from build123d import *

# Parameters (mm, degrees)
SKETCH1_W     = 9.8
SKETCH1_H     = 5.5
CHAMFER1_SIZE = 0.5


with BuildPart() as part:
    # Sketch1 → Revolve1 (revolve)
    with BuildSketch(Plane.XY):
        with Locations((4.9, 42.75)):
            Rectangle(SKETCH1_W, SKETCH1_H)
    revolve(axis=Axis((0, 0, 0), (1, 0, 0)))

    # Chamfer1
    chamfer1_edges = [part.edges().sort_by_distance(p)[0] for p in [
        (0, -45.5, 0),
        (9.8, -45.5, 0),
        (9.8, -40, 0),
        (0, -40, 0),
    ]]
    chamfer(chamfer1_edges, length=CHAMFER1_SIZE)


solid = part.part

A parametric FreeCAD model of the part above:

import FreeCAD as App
import Part
import Sketcher
Q = App.Units.Quantity


def edges_at(feature, points):
    """Names of the edges that pass closest to the given points."""
    edges = feature.Shape.Edges
    near = lambda p: min(range(len(edges)), key=lambda i: edges[i].distToShape(Part.Vertex(*p))[0])
    return sorted({f"Edge{near(p) + 1}" for p in points})


def add_polygon(sketch, points):
    """Adds a closed chain of lines whose ends are joined by coincident constraints."""
    first, n = sketch.GeometryCount, len(points)
    for a, b in zip(points, points[1:] + points[:1]):
        sketch.addGeometry(Part.LineSegment(App.Vector(*a, 0), App.Vector(*b, 0)), False)
    for i in range(n):
        sketch.addConstraint(Sketcher.Constraint("Coincident", first + i, 2, first + (i + 1) % n, 1))

doc = App.newDocument("Part")
body = doc.addObject("PartDesign::Body", "Body")

# Sketch on XY plane
sketch1 = body.newObject("Sketcher::SketchObject", "Sketch")
sketch1.AttachmentSupport = (doc.getObject("XY_Plane"), [""])
sketch1.MapMode = "FlatFace"
add_polygon(sketch1, [(0, 46), (0, 40), (10, 40), (10, 46)])  # lines 0-3
sketch1.addConstraint(Sketcher.Constraint("Vertical", 0))
sketch1.addConstraint(Sketcher.Constraint("Horizontal", 1))
sketch1.addConstraint(Sketcher.Constraint("Vertical", 2))
sketch1.addConstraint(Sketcher.Constraint("Horizontal", 3))
sketch1.addConstraint(Sketcher.Constraint("PointOnObject", 0, 2, -2))
sketch1.addConstraint(Sketcher.Constraint("DistanceX", 1, 1, 1, 2, Q("9.8 mm")))
sketch1.addConstraint(Sketcher.Constraint("DistanceY", 0, 2, 0, 1, Q("5.5 mm")))
sketch1.addConstraint(Sketcher.Constraint("DistanceY", -1, 1, 0, 2, Q("40 mm")))
revolution = body.newObject("PartDesign::Revolution", "Revolution")
revolution.Profile = sketch1
revolution.ReferenceAxis = (sketch1, ["H_Axis"])
revolution.Angle = 360
doc.recompute()

chamfer = body.newObject("PartDesign::Chamfer", "Chamfer")
chamfer.Base = (revolution, edges_at(revolution, [
    (0, -45.5, 0),
    (9.8, -45.5, 0),
    (9.8, -40, 0),
    (0, -40, 0),
]))
chamfer.Size = 0.5

doc.recompute()
